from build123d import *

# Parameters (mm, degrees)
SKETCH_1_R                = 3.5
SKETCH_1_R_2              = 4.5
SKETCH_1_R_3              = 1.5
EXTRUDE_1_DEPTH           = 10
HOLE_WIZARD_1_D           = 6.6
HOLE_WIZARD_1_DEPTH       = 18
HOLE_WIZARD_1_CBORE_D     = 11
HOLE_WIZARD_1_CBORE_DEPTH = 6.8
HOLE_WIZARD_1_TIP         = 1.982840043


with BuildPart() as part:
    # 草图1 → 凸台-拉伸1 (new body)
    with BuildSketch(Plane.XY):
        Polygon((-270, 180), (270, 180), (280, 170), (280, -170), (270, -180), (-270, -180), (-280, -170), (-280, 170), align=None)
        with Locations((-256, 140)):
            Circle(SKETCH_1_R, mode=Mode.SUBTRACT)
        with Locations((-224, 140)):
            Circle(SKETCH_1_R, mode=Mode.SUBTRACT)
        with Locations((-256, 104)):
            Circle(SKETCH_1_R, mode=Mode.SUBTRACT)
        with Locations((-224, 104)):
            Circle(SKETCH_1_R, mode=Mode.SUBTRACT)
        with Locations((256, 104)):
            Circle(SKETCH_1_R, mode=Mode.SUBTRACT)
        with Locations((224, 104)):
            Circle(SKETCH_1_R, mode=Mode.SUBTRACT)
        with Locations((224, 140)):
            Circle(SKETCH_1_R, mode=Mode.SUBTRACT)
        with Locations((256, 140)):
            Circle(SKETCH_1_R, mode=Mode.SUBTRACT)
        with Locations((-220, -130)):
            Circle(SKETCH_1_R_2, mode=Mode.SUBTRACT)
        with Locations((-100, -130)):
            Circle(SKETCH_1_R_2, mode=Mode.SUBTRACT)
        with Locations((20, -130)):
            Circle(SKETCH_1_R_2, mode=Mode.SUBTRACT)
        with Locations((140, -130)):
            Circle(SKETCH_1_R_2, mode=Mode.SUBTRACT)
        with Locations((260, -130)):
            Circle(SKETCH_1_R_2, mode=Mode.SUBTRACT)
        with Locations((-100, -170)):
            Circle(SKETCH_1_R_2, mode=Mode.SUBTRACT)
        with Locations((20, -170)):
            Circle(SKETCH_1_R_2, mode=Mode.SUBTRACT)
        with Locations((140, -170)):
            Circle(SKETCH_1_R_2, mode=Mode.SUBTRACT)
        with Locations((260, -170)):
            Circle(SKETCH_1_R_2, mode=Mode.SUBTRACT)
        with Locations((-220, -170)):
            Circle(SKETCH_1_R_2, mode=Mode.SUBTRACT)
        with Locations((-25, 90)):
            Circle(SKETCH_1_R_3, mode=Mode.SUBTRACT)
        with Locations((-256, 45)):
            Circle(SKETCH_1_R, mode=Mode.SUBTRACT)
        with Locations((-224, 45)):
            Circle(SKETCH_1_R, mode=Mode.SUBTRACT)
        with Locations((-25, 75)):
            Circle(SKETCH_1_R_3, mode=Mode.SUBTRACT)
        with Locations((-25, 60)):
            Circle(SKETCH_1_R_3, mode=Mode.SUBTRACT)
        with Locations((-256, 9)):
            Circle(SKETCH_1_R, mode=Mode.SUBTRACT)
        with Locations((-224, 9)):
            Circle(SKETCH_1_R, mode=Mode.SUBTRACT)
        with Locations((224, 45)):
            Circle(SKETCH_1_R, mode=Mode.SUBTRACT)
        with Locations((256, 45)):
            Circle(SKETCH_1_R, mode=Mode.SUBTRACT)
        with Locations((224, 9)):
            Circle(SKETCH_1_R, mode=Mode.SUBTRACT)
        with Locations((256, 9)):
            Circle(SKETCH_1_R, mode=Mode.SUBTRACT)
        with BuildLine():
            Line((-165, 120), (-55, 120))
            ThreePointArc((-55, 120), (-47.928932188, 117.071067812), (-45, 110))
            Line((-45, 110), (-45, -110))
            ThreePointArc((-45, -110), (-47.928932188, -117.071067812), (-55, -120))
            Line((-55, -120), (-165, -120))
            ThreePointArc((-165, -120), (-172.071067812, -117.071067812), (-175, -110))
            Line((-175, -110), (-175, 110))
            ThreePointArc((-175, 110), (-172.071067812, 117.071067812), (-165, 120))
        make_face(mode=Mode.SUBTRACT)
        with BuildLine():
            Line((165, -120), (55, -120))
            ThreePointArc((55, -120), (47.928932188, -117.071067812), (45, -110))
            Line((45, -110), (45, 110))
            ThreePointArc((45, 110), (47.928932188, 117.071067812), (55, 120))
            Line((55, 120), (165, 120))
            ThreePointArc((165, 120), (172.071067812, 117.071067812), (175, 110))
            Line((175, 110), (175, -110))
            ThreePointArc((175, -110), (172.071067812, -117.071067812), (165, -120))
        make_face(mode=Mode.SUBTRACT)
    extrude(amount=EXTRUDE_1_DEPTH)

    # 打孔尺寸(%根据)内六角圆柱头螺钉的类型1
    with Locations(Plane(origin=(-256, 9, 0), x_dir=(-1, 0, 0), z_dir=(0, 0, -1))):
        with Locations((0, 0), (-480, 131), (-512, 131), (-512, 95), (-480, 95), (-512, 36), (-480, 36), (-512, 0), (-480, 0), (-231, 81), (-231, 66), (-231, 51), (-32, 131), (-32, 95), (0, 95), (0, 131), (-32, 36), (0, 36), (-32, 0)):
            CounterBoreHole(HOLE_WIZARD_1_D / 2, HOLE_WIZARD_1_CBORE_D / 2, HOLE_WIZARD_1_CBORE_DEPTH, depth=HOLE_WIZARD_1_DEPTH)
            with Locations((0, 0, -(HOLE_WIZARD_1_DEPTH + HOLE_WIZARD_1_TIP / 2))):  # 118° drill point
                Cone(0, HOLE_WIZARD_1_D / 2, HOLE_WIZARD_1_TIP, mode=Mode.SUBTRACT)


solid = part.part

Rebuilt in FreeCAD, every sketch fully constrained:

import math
import FreeCAD as App
import Part
import Sketcher

V = App.Vector


def add_polygon(sketch, points):
    """Adds a closed chain of lines whose ends are joined by coincident constraints."""
    first, n = sketch.GeometryCount, len(points)
    for a, b in zip(points, points[1:] + points[:1]):
        sketch.addGeometry(Part.LineSegment(App.Vector(*a, 0), App.Vector(*b, 0)), False)
    for i in range(n):
        sketch.addConstraint(Sketcher.Constraint("Coincident", first + i, 2, first + (i + 1) % n, 1))

doc = App.newDocument("Part")
body = doc.addObject("PartDesign::Body", "Body")

# Sketch on XY plane
sketch1 = body.newObject("Sketcher::SketchObject", "Sketch")
sketch1.AttachmentSupport = (doc.getObject("XY_Plane"), [""])
sketch1.MapMode = "FlatFace"
add_polygon(sketch1, [(270, 180), (-270, 180), (-280, 170), (-280, -170), (-270, -180), (270, -180), (280, -170), (280, 170)])  # lines 0-7
sketch1.addGeometry(Part.Circle(V(260, -170, 0), V(0, 0, 1), 4.5), False)  # 8
sketch1.addGeometry(Part.Circle(V(140, -170, 0), V(0, 0, 1), 4.5), False)  # 9
sketch1.addGeometry(Part.Circle(V(260, -130, 0), V(0, 0, 1), 4.5), False)  # 10
sketch1.addGeometry(Part.Circle(V(140, -130, 0), V(0, 0, 1), 4.5), False)  # 11
sketch1.addGeometry(Part.Circle(V(20, -170, 0), V(0, 0, 1), 4.5), False)  # 12
sketch1.addGeometry(Part.Circle(V(20, -130, 0), V(0, 0, 1), 4.5), False)  # 13
sketch1.addGeometry(Part.Circle(V(-100, -170, 0), V(0, 0, 1), 4.5), False)  # 14
sketch1.addGeometry(Part.Circle(V(-100, -130, 0), V(0, 0, 1), 4.5), False)  # 15
sketch1.addGeometry(Part.Circle(V(-220, -170, 0), V(0, 0, 1), 4.5), False)  # 16
sketch1.addGeometry(Part.Circle(V(-220, -130, 0), V(0, 0, 1), 4.5), False)  # 17
sketch1.addGeometry(Part.Circle(V(256, 9, 0), V(0, 0, 1), 3.5), False)  # 18
sketch1.addGeometry(Part.Circle(V(224, 9, 0), V(0, 0, 1), 3.5), False)  # 19
sketch1.addGeometry(Part.Circle(V(256, 45, 0), V(0, 0, 1), 3.5), False)  # 20
sketch1.addGeometry(Part.Circle(V(224, 45, 0), V(0, 0, 1), 3.5), False)  # 21
sketch1.addGeometry(Part.LineSegment(V(165, -120, 0), V(55, -120, 0)), False)  # 22
sketch1.addGeometry(Part.ArcOfCircle(Part.Circle(V(55, -110, 0), V(0, 0, 1), 10), math.radians(180), math.radians(270)), False)  # 23
sketch1.addGeometry(Part.LineSegment(V(45, -110, 0), V(45, 110, 0)), False)  # 24
sketch1.addGeometry(Part.ArcOfCircle(Part.Circle(V(55, 110, 0), V(0, 0, 1), 10), math.radians(90), math.radians(180)), False)  # 25
sketch1.addGeometry(Part.LineSegment(V(55, 120, 0), V(165, 120, 0)), False)  # 26
sketch1.addGeometry(Part.ArcOfCircle(Part.Circle(V(165, 110, 0), V(0, 0, 1), 10), math.radians(0), math.radians(90)), False)  # 27
sketch1.addGeometry(Part.LineSegment(V(175, 110, 0), V(175, -110, 0)), False)  # 28
sketch1.addGeometry(Part.ArcOfCircle(Part.Circle(V(165, -110, 0), V(0, 0, 1), 10), math.radians(-90), math.radians(0)), False)  # 29
sketch1.addGeometry(Part.Circle(V(256, 104, 0), V(0, 0, 1), 3.5), False)  # 30
sketch1.addGeometry(Part.Circle(V(224, 104, 0), V(0, 0, 1), 3.5), False)  # 31
sketch1.addGeometry(Part.Circle(V(256, 140, 0), V(0, 0, 1), 3.5), False)  # 32
sketch1.addGeometry(Part.Circle(V(224, 140, 0), V(0, 0, 1), 3.5), False)  # 33
sketch1.addGeometry(Part.LineSegment(V(-165, 120, 0), V(-55, 120, 0)), False)  # 34
sketch1.addGeometry(Part.ArcOfCircle(Part.Circle(V(-55, 110, 0), V(0, 0, 1), 10), math.radians(0), math.radians(90)), False)  # 35
sketch1.addGeometry(Part.LineSegment(V(-45, 110, 0), V(-45, -110, 0)), False)  # 36
sketch1.addGeometry(Part.ArcOfCircle(Part.Circle(V(-55, -110, 0), V(0, 0, 1), 10), math.radians(-90), math.radians(0)), False)  # 37
sketch1.addGeometry(Part.LineSegment(V(-55, -120, 0), V(-165, -120, 0)), False)  # 38
sketch1.addGeometry(Part.ArcOfCircle(Part.Circle(V(-165, -110, 0), V(0, 0, 1), 10), math.radians(180), math.radians(270)), False)  # 39
sketch1.addGeometry(Part.LineSegment(V(-175, -110, 0), V(-175, 110, 0)), False)  # 40
sketch1.addGeometry(Part.ArcOfCircle(Part.Circle(V(-165, 110, 0), V(0, 0, 1), 10), math.radians(90), math.radians(180)), False)  # 41
sketch1.addGeometry(Part.Circle(V(-25, 60, 0), V(0, 0, 1), 1.5), False)  # 42
sketch1.addGeometry(Part.Circle(V(-224, 9, 0), V(0, 0, 1), 3.5), False)  # 43
sketch1.addGeometry(Part.Circle(V(-256, 9, 0), V(0, 0, 1), 3.5), False)  # 44
sketch1.addGeometry(Part.Circle(V(-224, 45, 0), V(0, 0, 1), 3.5), False)  # 45
sketch1.addGeometry(Part.Circle(V(-256, 45, 0), V(0, 0, 1), 3.5), False)  # 46
sketch1.addGeometry(Part.Circle(V(-25, 75, 0), V(0, 0, 1), 1.5), False)  # 47
sketch1.addGeometry(Part.Circle(V(-25, 90, 0), V(0, 0, 1), 1.5), False)  # 48
sketch1.addGeometry(Part.Circle(V(-224, 104, 0), V(0, 0, 1), 3.5), False)  # 49
sketch1.addGeometry(Part.Circle(V(-256, 104, 0), V(0, 0, 1), 3.5), False)  # 50
sketch1.addGeometry(Part.Circle(V(-224, 140, 0), V(0, 0, 1), 3.5), False)  # 51
sketch1.addGeometry(Part.Circle(V(-256, 140, 0), V(0, 0, 1), 3.5), False)  # 52
sketch1.addConstraint(Sketcher.Constraint("Tangent", 22, 2, 23, 2))
sketch1.addConstraint(Sketcher.Constraint("Tangent", 23, 1, 24, 1))
sketch1.addConstraint(Sketcher.Constraint("Tangent", 24, 2, 25, 2))
sketch1.addConstraint(Sketcher.Constraint("Tangent", 25, 1, 26, 1))
sketch1.addConstraint(Sketcher.Constraint("Tangent", 26, 2, 27, 2))
sketch1.addConstraint(Sketcher.Constraint("Tangent", 27, 1, 28, 1))
sketch1.addConstraint(Sketcher.Constraint("Tangent", 28, 2, 29, 2))
sketch1.addConstraint(Sketcher.Constraint("Tangent", 29, 1, 22, 1))
sketch1.addConstraint(Sketcher.Constraint("Tangent", 34, 2, 35, 2))
sketch1.addConstraint(Sketcher.Constraint("Tangent", 35, 1, 36, 1))
sketch1.addConstraint(Sketcher.Constraint("Tangent", 36, 2, 37, 2))
sketch1.addConstraint(Sketcher.Constraint("Tangent", 37, 1, 38, 1))
sketch1.addConstraint(Sketcher.Constraint("Tangent", 38, 2, 39, 2))
sketch1.addConstraint(Sketcher.Constraint("Tangent", 39, 1, 40, 1))
sketch1.addConstraint(Sketcher.Constraint("Tangent", 40, 2, 41, 2))
sketch1.addConstraint(Sketcher.Constraint("Tangent", 41, 1, 34, 1))
sketch1.addConstraint(Sketcher.Constraint("Horizontal", 0))
sketch1.addConstraint(Sketcher.Constraint("Vertical", 2))
sketch1.addConstraint(Sketcher.Constraint("Horizontal", 4))
sketch1.addConstraint(Sketcher.Constraint("Vertical", 6))
sketch1.addConstraint(Sketcher.Constraint("Horizontal", 22))
sketch1.addConstraint(Sketcher.Constraint("Vertical", 24))
sketch1.addConstraint(Sketcher.Constraint("Horizontal", 26))
sketch1.addConstraint(Sketcher.Constraint("Vertical", 28))
sketch1.addConstraint(Sketcher.Constraint("Horizontal", 34))
sketch1.addConstraint(Sketcher.Constraint("Vertical", 36))
sketch1.addConstraint(Sketcher.Constraint("Horizontal", 38))
sketch1.addConstraint(Sketcher.Constraint("Vertical", 40))
sketch1.addConstraint(Sketcher.Constraint("Equal", 8, 9))
sketch1.addConstraint(Sketcher.Constraint("Equal", 9, 10))
sketch1.addConstraint(Sketcher.Constraint("Equal", 10, 11))
sketch1.addConstraint(Sketcher.Constraint("Equal", 11, 12))
sketch1.addConstraint(Sketcher.Constraint("Equal", 12, 13))
sketch1.addConstraint(Sketcher.Constraint("Equal", 13, 14))
sketch1.addConstraint(Sketcher.Constraint("Equal", 14, 15))
sketch1.addConstraint(Sketcher.Constraint("Equal", 15, 16))
sketch1.addConstraint(Sketcher.Constraint("Equal", 16, 17))
sketch1.addConstraint(Sketcher.Constraint("Equal", 18, 19))
sketch1.addConstraint(Sketcher.Constraint("Equal", 19, 20))
sketch1.addConstraint(Sketcher.Constraint("Equal", 20, 21))
sketch1.addConstraint(Sketcher.Constraint("Equal", 23, 25))
sketch1.addConstraint(Sketcher.Constraint("Equal", 25, 27))
sketch1.addConstraint(Sketcher.Constraint("Equal", 27, 29))
sketch1.addConstraint(Sketcher.Constraint("Equal", 21, 30))
sketch1.addConstraint(Sketcher.Constraint("Equal", 30, 31))
sketch1.addConstraint(Sketcher.Constraint("Equal", 31, 32))
sketch1.addConstraint(Sketcher.Constraint("Equal", 32, 33))
sketch1.addConstraint(Sketcher.Constraint("Equal", 29, 35))
sketch1.addConstraint(Sketcher.Constraint("Equal", 35, 37))
sketch1.addConstraint(Sketcher.Constraint("Equal", 37, 39))
sketch1.addConstraint(Sketcher.Constraint("Equal", 39, 41))
sketch1.addConstraint(Sketcher.Constraint("Equal", 33, 43))
sketch1.addConstraint(Sketcher.Constraint("Equal", 43, 44))
sketch1.addConstraint(Sketcher.Constraint("Equal", 44, 45))
sketch1.addConstraint(Sketcher.Constraint("Equal", 45, 46))
sketch1.addConstraint(Sketcher.Constraint("Equal", 42, 47))
sketch1.addConstraint(Sketcher.Constraint("Equal", 47, 48))
sketch1.addConstraint(Sketcher.Constraint("Equal", 46, 49))
sketch1.addConstraint(Sketcher.Constraint("Equal", 49, 50))
sketch1.addConstraint(Sketcher.Constraint("Equal", 50, 51))
sketch1.addConstraint(Sketcher.Constraint("Equal", 51, 52))
sketch1.addConstraint(Sketcher.Constraint("Symmetric", 23, 3, 35, 3, -1, 1))
sketch1.addConstraint(Sketcher.Constraint("Symmetric", 27, 3, 39, 3, -1, 1))
sketch1.addConstraint(Sketcher.Constraint("Symmetric", 0, 2, 4, 2, -1, 1))
sketch1.addConstraint(Sketcher.Constraint("Symmetric", 1, 2, 5, 2, -1, 1))
sketch1.addConstraint(Sketcher.Constraint("Symmetric", 19, 3, 43, 3, -2))
sketch1.addConstraint(Sketcher.Constraint("Symmetric", 18, 3, 44, 3, -2))
sketch1.addConstraint(Sketcher.Constraint("Symmetric", 21, 3, 45, 3, -2))
sketch1.addConstraint(Sketcher.Constraint("Symmetric", 20, 3, 46, 3, -2))
sketch1.addConstraint(Sketcher.Constraint("Symmetric", 31, 3, 49, 3, -2))
sketch1.addConstraint(Sketcher.Constraint("Symmetric", 30, 3, 50, 3, -2))
sketch1.addConstraint(Sketcher.Constraint("Symmetric", 33, 3, 51, 3, -2))
sketch1.addConstraint(Sketcher.Constraint("Symmetric", 32, 3, 52, 3, -2))
sketch1.addConstraint(Sketcher.Constraint("Perpendicular", 1, 3))
sketch1.addConstraint(Sketcher.Constraint("Perpendicular", 5, 7))
sketch1.addConstraint(Sketcher.Constraint("Horizontal", 8, 3, 9, 3))
sketch1.addConstraint(Sketcher.Constraint("Horizontal", 10, 3, 11, 3))
sketch1.addConstraint(Sketcher.Constraint("Horizontal", 9, 3, 12, 3))
sketch1.addConstraint(Sketcher.Constraint("Horizontal", 11, 3, 13, 3))
sketch1.addConstraint(Sketcher.Constraint("Horizontal", 12, 3, 14, 3))
sketch1.addConstraint(Sketcher.Constraint("Horizontal", 13, 3, 15, 3))
sketch1.addConstraint(Sketcher.Constraint("Horizontal", 14, 3, 16, 3))
sketch1.addConstraint(Sketcher.Constraint("Horizontal", 15, 3, 17, 3))
sketch1.addConstraint(Sketcher.Constraint("Horizontal", 18, 3, 19, 3))
sketch1.addConstraint(Sketcher.Constraint("Horizontal", 20, 3, 21, 3))
sketch1.addConstraint(Sketcher.Constraint("Horizontal", 30, 3, 31, 3))
sketch1.addConstraint(Sketcher.Constraint("Horizontal", 32, 3, 33, 3))
sketch1.addConstraint(Sketcher.Constraint("Horizontal", 27, 3, 35, 3))
sketch1.addConstraint(Sketcher.Constraint("Horizontal", 16, 3, 2, 2))
sketch1.addConstraint(Sketcher.Constraint("Horizontal", 2, 2, 5, 2))
sketch1.addConstraint(Sketcher.Constraint("Horizontal", 1, 2, 6, 2))
sketch1.addConstraint(Sketcher.Constraint("Vertical", 8, 3, 10, 3))
sketch1.addConstraint(Sketcher.Constraint("Vertical", 9, 3, 11, 3))
sketch1.addConstraint(Sketcher.Constraint("Vertical", 12, 3, 13, 3))
sketch1.addConstraint(Sketcher.Constraint("Vertical", 14, 3, 15, 3))
sketch1.addConstraint(Sketcher.Constraint("Vertical", 16, 3, 17, 3))
sketch1.addConstraint(Sketcher.Constraint("Vertical", 18, 3, 20, 3))
sketch1.addConstraint(Sketcher.Constraint("Vertical", 19, 3, 21, 3))
sketch1.addConstraint(Sketcher.Constraint("Vertical", 20, 3, 30, 3))
sketch1.addConstraint(Sketcher.Constraint("Vertical", 21, 3, 31, 3))
sketch1.addConstraint(Sketcher.Constraint("Vertical", 30, 3, 32, 3))
sketch1.addConstraint(Sketcher.Constraint("Vertical", 31, 3, 33, 3))
sketch1.addConstraint(Sketcher.Constraint("Vertical", 42, 3, 47, 3))
sketch1.addConstraint(Sketcher.Constraint("Vertical", 47, 3, 48, 3))
sketch1.addConstraint(Sketcher.Constraint("Vertical", 0, 2, 3, 2))
sketch1.addConstraint(Sketcher.Constraint("Diameter", 8, 9.0))
sketch1.addConstraint(Sketcher.Constraint("Diameter", 18, 7.0))
sketch1.addConstraint(Sketcher.Constraint("Diameter", 42, 3.0))
sketch1.addConstraint(Sketcher.Constraint("Radius", 23, 10.0))
sketch1.addConstraint(Sketcher.Constraint("DistanceX", 0, 2, 0, 1, 540.0))
sketch1.addConstraint(Sketcher.Constraint("DistanceX", 22, 2, 22, 1, 110.0))
sketch1.addConstraint(Sketcher.Constraint("DistanceY", 2, 2, 2, 1, 340.0))
sketch1.addConstraint(Sketcher.Constraint("DistanceY", 24, 1, 24, 2, 220.0))
sketch1.addConstraint(Sketcher.Constraint("DistanceX", -1, 1, 8, 3, 260.0))
sketch1.addConstraint(Sketcher.Constraint("DistanceX", -1, 1, 9, 3, 140.0))
sketch1.addConstraint(Sketcher.Constraint("DistanceY", 10, 3, -1, 1, 130.0))
sketch1.addConstraint(Sketcher.Constraint("DistanceX", -1, 1, 12, 3, 20.0))
sketch1.addConstraint(Sketcher.Constraint("DistanceX", 14, 3, -1, 1, 100.0))
sketch1.addConstraint(Sketcher.Constraint("DistanceX", 16, 3, -1, 1, 220.0))
sketch1.addConstraint(Sketcher.Constraint("DistanceX", -1, 1, 18, 3, 256.0))
sketch1.addConstraint(Sketcher.Constraint("DistanceY", -1, 1, 18, 3, 9.0))
sketch1.addConstraint(Sketcher.Constraint("DistanceX", -1, 1, 19, 3, 224.0))
sketch1.addConstraint(Sketcher.Constraint("DistanceY", -1, 1, 20, 3, 45.0))
sketch1.addConstraint(Sketcher.Constraint("DistanceX", -1, 1, 23, 3, 55.0))
sketch1.addConstraint(Sketcher.Constraint("DistanceY", -1, 1, 30, 3, 104.0))
sketch1.addConstraint(Sketcher.Constraint("DistanceY", -1, 1, 32, 3, 140.0))
sketch1.addConstraint(Sketcher.Constraint("DistanceX", 42, 3, -1, 1, 25.0))
sketch1.addConstraint(Sketcher.Constraint("DistanceY", -1, 1, 42, 3, 60.0))
sketch1.addConstraint(Sketcher.Constraint("DistanceY", -1, 1, 47, 3, 75.0))
sketch1.addConstraint(Sketcher.Constraint("DistanceY", -1, 1, 48, 3, 90.0))
sketch1.addConstraint(Sketcher.Constraint("DistanceY", -1, 1, 0, 2, 180.0))
pad1 = body.newObject("PartDesign::Pad", "Pad")
pad1.Profile = sketch1
pad1.Length = 10

# Sketch on XY plane
sketch2 = body.newObject("Sketcher::SketchObject", "Sketch001")
sketch2.AttachmentSupport = (doc.getObject("XY_Plane"), [""])
sketch2.MapMode = "FlatFace"
sketch2.addGeometry(Part.Circle(V(-256, 9, 0), V(0, 0, 1), 3.3), False)
sketch2.addGeometry(Part.Circle(V(224, 140, 0), V(0, 0, 1), 3.3), False)
sketch2.addGeometry(Part.Circle(V(256, 140, 0), V(0, 0, 1), 3.3), False)
sketch2.addGeometry(Part.Circle(V(256, 104, 0), V(0, 0, 1), 3.3), False)
sketch2.addGeometry(Part.Circle(V(224, 104, 0), V(0, 0, 1), 3.3), False)
sketch2.addGeometry(Part.Circle(V(256, 45, 0), V(0, 0, 1), 3.3), False)
sketch2.addGeometry(Part.Circle(V(224, 45, 0), V(0, 0, 1), 3.3), False)
sketch2.addGeometry(Part.Circle(V(256, 9, 0), V(0, 0, 1), 3.3), False)
sketch2.addGeometry(Part.Circle(V(224, 9, 0), V(0, 0, 1), 3.3), False)
sketch2.addGeometry(Part.Circle(V(-25, 90, 0), V(0, 0, 1), 3.3), False)
sketch2.addGeometry(Part.Circle(V(-25, 75, 0), V(0, 0, 1), 3.3), False)
sketch2.addGeometry(Part.Circle(V(-25, 60, 0), V(0, 0, 1), 3.3), False)
sketch2.addGeometry(Part.Circle(V(-224, 140, 0), V(0, 0, 1), 3.3), False)
sketch2.addGeometry(Part.Circle(V(-224, 104, 0), V(0, 0, 1), 3.3), False)
sketch2.addGeometry(Part.Circle(V(-256, 104, 0), V(0, 0, 1), 3.3), False)
sketch2.addGeometry(Part.Circle(V(-256, 140, 0), V(0, 0, 1), 3.3), False)
sketch2.addGeometry(Part.Circle(V(-224, 45, 0), V(0, 0, 1), 3.3), False)
sketch2.addGeometry(Part.Circle(V(-256, 45, 0), V(0, 0, 1), 3.3), False)
sketch2.addGeometry(Part.Circle(V(-224, 9, 0), V(0, 0, 1), 3.3), False)
sketch2.addConstraint(Sketcher.Constraint("Equal", 0, 1))
sketch2.addConstraint(Sketcher.Constraint("Equal", 1, 2))
sketch2.addConstraint(Sketcher.Constraint("Equal", 2, 3))
sketch2.addConstraint(Sketcher.Constraint("Equal", 3, 4))
sketch2.addConstraint(Sketcher.Constraint("Equal", 4, 5))
sketch2.addConstraint(Sketcher.Constraint("Equal", 5, 6))
sketch2.addConstraint(Sketcher.Constraint("Equal", 6, 7))
sketch2.addConstraint(Sketcher.Constraint("Equal", 7, 8))
sketch2.addConstraint(Sketcher.Constraint("Equal", 8, 9))
sketch2.addConstraint(Sketcher.Constraint("Equal", 9, 10))
sketch2.addConstraint(Sketcher.Constraint("Equal", 10, 11))
sketch2.addConstraint(Sketcher.Constraint("Equal", 11, 12))
sketch2.addConstraint(Sketcher.Constraint("Equal", 12, 13))
sketch2.addConstraint(Sketcher.Constraint("Equal", 13, 14))
sketch2.addConstraint(Sketcher.Constraint("Equal", 14, 15))
sketch2.addConstraint(Sketcher.Constraint("Equal", 15, 16))
sketch2.addConstraint(Sketcher.Constraint("Equal", 16, 17))
sketch2.addConstraint(Sketcher.Constraint("Equal", 17, 18))
sketch2.addConstraint(Sketcher.Constraint("Symmetric", 0, 3, 7, 3, -2))
sketch2.addConstraint(Sketcher.Constraint("Symmetric", 1, 3, 12, 3, -2))
sketch2.addConstraint(Sketcher.Constraint("Symmetric", 4, 3, 13, 3, -2))
sketch2.addConstraint(Sketcher.Constraint("Symmetric", 3, 3, 14, 3, -2))
sketch2.addConstraint(Sketcher.Constraint("Symmetric", 2, 3, 15, 3, -2))
sketch2.addConstraint(Sketcher.Constraint("Symmetric", 6, 3, 16, 3, -2))
sketch2.addConstraint(Sketcher.Constraint("Symmetric", 5, 3, 17, 3, -2))
sketch2.addConstraint(Sketcher.Constraint("Symmetric", 8, 3, 18, 3, -2))
sketch2.addConstraint(Sketcher.Constraint("Horizontal", 1, 3, 2, 3))
sketch2.addConstraint(Sketcher.Constraint("Horizontal", 3, 3, 4, 3))
sketch2.addConstraint(Sketcher.Constraint("Horizontal", 5, 3, 6, 3))
sketch2.addConstraint(Sketcher.Constraint("Horizontal", 7, 3, 8, 3))
sketch2.addConstraint(Sketcher.Constraint("Vertical", 2, 3, 3, 3))
sketch2.addConstraint(Sketcher.Constraint("Vertical", 1, 3, 4, 3))
sketch2.addConstraint(Sketcher.Constraint("Vertical", 3, 3, 5, 3))
sketch2.addConstraint(Sketcher.Constraint("Vertical", 4, 3, 6, 3))
sketch2.addConstraint(Sketcher.Constraint("Vertical", 5, 3, 7, 3))
sketch2.addConstraint(Sketcher.Constraint("Vertical", 6, 3, 8, 3))
sketch2.addConstraint(Sketcher.Constraint("Vertical", 9, 3, 10, 3))
sketch2.addConstraint(Sketcher.Constraint("Vertical", 10, 3, 11, 3))
sketch2.addConstraint(Sketcher.Constraint("Diameter", 0, 6.6))
sketch2.addConstraint(Sketcher.Constraint("DistanceX", 0, 3, -1, 1, 256.0))
sketch2.addConstraint(Sketcher.Constraint("DistanceY", -1, 1, 0, 3, 9.0))
sketch2.addConstraint(Sketcher.Constraint("DistanceX", -1, 1, 1, 3, 224.0))
sketch2.addConstraint(Sketcher.Constraint("DistanceY", -1, 1, 1, 3, 140.0))
sketch2.addConstraint(Sketcher.Constraint("DistanceY", -1, 1, 3, 3, 104.0))
sketch2.addConstraint(Sketcher.Constraint("DistanceY", -1, 1, 5, 3, 45.0))
sketch2.addConstraint(Sketcher.Constraint("DistanceX", 9, 3, -1, 1, 25.0))
sketch2.addConstraint(Sketcher.Constraint("DistanceY", -1, 1, 9, 3, 90.0))
sketch2.addConstraint(Sketcher.Constraint("DistanceY", -1, 1, 10, 3, 75.0))
sketch2.addConstraint(Sketcher.Constraint("DistanceY", -1, 1, 11, 3, 60.0))
doc.recompute()
hole = body.newObject("PartDesign::Hole", "Hole")
hole.Profile = sketch2
hole.ThreadType = "None"
hole.Diameter = 6.6
hole.DepthType = "Dimension"
hole.Depth = 18
hole.DrillPoint = "Angled"
hole.DrillPointAngle = 118
hole.HoleCutType = "Counterbore"
hole.HoleCutDiameter = 11
hole.HoleCutDepth = 6.8
hole.Reversed = True

doc.recompute()
